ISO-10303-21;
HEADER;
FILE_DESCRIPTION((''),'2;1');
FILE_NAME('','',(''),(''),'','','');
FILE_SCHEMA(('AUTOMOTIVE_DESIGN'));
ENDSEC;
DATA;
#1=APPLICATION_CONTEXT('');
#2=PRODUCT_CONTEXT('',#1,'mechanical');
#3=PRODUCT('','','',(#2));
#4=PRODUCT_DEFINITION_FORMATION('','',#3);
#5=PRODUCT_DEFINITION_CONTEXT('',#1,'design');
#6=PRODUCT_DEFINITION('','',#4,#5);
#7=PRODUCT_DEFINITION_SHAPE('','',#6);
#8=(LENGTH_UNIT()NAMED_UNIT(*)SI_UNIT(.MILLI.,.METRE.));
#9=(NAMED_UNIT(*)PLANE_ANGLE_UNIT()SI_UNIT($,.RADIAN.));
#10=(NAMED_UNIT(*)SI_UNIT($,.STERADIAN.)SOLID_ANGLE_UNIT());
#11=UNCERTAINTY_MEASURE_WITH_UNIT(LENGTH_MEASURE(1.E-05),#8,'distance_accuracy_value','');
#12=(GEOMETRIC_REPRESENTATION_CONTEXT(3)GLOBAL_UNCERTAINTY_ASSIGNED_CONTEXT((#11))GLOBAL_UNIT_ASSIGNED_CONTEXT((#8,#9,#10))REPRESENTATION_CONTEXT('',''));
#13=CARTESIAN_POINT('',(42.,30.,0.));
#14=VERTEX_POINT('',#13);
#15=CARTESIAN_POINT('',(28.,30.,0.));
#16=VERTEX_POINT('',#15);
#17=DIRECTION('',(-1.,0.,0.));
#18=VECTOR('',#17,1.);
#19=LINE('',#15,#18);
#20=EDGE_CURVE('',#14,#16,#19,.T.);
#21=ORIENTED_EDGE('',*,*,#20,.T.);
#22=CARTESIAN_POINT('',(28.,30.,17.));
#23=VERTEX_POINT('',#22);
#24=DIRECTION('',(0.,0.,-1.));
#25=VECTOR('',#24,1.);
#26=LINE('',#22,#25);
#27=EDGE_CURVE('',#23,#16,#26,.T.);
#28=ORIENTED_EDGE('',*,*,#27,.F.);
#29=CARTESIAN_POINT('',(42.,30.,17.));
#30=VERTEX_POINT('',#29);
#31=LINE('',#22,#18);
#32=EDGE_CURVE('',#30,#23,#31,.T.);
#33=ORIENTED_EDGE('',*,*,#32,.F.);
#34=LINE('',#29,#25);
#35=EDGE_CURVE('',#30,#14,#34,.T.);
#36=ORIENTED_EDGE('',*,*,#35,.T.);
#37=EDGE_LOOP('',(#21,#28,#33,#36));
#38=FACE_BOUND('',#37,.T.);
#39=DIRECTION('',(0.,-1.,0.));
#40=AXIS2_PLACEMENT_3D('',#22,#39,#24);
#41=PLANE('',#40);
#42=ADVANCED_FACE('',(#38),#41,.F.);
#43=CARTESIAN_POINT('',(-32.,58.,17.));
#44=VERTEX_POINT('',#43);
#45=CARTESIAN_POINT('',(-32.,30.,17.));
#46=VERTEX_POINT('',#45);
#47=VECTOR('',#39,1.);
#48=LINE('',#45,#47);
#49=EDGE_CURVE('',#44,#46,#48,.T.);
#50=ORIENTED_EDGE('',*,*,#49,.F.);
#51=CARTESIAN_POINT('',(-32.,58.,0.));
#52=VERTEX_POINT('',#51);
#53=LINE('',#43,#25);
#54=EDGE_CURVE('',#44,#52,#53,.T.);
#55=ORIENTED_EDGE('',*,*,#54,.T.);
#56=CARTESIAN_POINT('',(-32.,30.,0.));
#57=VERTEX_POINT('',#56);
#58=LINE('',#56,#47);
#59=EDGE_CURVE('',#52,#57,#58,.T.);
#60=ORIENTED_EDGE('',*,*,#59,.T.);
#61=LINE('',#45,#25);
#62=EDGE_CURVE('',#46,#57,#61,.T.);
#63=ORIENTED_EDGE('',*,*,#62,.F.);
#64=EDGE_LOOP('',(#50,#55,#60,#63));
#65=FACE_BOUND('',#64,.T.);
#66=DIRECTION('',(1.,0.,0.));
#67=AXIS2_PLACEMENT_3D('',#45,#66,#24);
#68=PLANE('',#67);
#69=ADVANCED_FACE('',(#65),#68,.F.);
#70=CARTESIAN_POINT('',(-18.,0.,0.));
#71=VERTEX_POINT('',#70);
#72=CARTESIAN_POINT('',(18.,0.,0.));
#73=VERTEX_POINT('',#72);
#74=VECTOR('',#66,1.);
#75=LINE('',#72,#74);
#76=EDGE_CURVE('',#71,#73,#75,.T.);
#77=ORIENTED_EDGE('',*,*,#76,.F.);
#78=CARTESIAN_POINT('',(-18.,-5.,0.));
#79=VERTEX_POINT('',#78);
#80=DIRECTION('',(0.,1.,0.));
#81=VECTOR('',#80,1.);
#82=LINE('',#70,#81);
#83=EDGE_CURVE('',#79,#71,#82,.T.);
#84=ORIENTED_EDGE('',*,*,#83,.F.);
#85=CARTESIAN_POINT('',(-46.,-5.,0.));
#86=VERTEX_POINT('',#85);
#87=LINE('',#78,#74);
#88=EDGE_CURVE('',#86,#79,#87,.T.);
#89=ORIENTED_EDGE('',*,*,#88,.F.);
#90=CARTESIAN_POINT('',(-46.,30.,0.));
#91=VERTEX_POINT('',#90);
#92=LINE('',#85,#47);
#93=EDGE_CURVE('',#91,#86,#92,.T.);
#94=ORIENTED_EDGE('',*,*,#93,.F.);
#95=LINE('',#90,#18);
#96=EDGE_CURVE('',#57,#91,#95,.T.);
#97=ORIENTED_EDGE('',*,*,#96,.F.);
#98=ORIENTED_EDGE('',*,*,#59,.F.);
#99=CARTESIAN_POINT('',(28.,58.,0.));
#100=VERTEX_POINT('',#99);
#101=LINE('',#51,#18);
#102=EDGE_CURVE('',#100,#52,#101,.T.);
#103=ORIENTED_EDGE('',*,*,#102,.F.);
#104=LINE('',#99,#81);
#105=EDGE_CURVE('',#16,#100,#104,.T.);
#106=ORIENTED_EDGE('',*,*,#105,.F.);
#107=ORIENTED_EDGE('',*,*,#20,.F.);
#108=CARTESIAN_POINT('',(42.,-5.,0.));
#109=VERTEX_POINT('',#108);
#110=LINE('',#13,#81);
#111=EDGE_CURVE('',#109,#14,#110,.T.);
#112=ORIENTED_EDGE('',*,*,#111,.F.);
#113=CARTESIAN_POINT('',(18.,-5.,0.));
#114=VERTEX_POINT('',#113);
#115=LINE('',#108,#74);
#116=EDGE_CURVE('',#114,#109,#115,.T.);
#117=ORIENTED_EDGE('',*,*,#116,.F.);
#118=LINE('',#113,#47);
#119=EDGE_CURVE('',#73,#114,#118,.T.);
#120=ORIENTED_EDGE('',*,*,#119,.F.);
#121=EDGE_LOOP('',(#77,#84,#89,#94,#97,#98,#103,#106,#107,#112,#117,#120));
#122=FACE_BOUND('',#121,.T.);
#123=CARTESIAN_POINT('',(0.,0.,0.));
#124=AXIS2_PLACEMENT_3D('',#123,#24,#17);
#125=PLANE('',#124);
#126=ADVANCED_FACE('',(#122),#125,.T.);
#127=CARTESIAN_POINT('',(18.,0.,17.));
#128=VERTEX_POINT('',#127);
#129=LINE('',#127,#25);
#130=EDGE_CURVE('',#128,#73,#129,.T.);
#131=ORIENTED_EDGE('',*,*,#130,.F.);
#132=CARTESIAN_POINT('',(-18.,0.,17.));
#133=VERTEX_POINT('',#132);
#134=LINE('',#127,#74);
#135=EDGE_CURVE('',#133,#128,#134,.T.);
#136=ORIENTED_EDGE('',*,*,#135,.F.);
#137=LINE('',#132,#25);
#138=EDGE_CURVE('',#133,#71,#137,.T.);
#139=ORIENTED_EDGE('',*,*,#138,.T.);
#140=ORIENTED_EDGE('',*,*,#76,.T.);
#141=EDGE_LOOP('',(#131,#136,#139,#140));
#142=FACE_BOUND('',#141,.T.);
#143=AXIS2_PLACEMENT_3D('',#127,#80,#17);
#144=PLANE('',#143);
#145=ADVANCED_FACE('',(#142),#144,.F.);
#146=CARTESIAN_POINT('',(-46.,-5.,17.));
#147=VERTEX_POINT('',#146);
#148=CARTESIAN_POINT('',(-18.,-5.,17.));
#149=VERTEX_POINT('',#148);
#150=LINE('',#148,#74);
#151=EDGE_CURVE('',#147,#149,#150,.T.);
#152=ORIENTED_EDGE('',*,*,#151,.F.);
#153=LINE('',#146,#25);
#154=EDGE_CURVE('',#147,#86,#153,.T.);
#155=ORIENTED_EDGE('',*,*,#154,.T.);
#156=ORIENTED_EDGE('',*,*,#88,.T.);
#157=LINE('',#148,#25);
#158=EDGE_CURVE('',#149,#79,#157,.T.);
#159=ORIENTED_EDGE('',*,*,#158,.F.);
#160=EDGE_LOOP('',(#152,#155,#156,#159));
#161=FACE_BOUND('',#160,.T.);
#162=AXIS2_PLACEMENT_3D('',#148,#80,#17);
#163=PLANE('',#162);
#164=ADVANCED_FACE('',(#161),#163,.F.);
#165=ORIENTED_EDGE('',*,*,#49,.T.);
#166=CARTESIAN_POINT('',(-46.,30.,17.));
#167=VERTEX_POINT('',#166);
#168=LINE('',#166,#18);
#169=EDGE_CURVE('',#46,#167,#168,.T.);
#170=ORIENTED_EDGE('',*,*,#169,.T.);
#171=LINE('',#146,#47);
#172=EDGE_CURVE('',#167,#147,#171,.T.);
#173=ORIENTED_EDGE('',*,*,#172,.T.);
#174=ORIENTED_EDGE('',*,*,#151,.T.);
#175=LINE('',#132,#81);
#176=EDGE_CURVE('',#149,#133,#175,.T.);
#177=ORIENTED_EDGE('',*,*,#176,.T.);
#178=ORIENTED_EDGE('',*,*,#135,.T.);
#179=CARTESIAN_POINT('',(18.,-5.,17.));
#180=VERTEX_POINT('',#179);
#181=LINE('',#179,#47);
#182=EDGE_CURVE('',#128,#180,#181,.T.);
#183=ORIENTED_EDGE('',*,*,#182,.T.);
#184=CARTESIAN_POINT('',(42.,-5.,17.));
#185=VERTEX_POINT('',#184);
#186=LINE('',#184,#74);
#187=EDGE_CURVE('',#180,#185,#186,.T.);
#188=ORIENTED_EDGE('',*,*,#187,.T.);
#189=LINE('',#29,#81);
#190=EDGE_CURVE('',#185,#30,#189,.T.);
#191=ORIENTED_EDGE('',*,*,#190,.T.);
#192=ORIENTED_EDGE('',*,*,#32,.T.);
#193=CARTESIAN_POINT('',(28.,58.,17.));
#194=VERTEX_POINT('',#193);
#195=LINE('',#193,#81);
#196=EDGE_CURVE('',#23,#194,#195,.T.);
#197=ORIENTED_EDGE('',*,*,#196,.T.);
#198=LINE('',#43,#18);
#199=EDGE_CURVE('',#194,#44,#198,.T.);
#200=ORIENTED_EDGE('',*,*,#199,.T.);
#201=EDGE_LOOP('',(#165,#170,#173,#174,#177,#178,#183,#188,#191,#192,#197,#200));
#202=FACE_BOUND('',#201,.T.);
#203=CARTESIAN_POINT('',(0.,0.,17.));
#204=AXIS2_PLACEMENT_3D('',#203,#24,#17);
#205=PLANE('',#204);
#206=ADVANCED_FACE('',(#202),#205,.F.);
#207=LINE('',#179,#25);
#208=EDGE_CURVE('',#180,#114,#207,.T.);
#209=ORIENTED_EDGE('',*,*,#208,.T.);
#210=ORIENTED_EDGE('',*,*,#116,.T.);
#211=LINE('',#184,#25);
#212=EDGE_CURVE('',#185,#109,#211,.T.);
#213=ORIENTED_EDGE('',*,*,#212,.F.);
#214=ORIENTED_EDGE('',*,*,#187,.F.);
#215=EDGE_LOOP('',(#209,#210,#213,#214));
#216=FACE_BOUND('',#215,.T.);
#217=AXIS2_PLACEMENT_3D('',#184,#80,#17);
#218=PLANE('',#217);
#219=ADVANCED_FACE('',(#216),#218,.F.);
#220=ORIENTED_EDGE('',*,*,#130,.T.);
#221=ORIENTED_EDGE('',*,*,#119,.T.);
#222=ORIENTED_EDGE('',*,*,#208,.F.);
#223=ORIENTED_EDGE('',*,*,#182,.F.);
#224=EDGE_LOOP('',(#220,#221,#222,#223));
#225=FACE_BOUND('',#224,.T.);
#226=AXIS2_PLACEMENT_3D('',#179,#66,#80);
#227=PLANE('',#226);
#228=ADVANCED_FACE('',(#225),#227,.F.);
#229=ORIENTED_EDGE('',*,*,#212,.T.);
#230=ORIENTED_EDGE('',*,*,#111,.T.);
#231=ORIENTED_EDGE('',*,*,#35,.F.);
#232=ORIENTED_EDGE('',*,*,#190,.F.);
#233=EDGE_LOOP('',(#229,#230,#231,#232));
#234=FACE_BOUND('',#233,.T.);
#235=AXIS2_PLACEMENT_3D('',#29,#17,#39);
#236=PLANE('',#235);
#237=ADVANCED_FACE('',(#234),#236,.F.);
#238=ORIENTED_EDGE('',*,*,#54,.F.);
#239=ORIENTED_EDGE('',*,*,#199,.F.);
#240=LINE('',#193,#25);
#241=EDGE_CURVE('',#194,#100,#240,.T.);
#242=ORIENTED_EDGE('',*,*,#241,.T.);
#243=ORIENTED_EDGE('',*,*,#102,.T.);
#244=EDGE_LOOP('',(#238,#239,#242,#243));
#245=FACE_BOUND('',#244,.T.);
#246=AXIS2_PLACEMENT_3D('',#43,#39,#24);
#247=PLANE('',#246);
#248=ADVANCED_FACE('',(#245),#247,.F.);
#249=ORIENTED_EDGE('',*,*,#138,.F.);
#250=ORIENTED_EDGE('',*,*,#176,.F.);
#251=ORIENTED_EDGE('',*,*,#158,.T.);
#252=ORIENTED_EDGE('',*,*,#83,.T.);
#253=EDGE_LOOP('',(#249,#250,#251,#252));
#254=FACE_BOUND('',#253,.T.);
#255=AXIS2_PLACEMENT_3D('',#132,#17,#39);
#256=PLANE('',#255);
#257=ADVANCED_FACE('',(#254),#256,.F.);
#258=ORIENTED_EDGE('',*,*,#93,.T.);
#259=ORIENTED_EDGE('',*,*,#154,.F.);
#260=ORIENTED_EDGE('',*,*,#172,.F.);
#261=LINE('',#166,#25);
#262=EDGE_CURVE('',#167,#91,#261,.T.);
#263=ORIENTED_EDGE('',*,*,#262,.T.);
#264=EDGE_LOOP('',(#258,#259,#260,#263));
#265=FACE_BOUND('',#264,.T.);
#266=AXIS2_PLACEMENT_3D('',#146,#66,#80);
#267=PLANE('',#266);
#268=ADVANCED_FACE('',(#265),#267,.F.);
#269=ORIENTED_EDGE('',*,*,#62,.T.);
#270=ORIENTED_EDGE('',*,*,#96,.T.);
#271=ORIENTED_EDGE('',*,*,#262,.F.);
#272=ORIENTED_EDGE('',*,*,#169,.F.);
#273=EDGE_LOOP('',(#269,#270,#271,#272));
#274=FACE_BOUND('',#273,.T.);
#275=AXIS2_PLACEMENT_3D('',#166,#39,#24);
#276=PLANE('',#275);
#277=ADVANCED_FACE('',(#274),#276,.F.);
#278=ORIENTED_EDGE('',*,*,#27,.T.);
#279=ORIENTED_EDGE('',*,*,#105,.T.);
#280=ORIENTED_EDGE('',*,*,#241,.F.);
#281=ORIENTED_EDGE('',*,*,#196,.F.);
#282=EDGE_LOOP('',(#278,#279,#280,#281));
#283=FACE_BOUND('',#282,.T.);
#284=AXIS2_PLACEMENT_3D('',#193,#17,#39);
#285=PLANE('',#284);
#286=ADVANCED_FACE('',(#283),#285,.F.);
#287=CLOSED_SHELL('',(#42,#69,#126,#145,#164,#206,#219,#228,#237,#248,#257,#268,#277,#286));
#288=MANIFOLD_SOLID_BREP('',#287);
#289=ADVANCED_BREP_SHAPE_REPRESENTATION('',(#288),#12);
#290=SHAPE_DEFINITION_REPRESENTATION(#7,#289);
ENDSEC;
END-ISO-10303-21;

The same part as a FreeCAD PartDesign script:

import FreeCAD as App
import Part
import Sketcher

V = App.Vector

doc = App.newDocument("Part")
body = doc.addObject("PartDesign::Body", "Body")

sketch1 = doc.addObject("Sketcher::SketchObject", "Sketch")
body.addObject(sketch1)
sketch1.AttachmentSupport = (doc.XY_Plane, [""])
sketch1.MapMode = "FlatFace"
sketch1.addGeometry(Part.LineSegment(V(28, 58, 0), V(-32, 58, 0)), False)
sketch1.addGeometry(Part.LineSegment(V(-32, 58, 0), V(-32, 30, 0)), False)
sketch1.addGeometry(Part.LineSegment(V(-32, 30, 0), V(-46, 30, 0)), False)
sketch1.addGeometry(Part.LineSegment(V(-46, 30, 0), V(-46, -5, 0)), False)
sketch1.addGeometry(Part.LineSegment(V(-46, -5, 0), V(-18, -5, 0)), False)
sketch1.addGeometry(Part.LineSegment(V(-18, -5, 0), V(-18, 0, 0)), False)
sketch1.addGeometry(Part.LineSegment(V(-18, 0, 0), V(18, 0, 0)), False)
sketch1.addGeometry(Part.LineSegment(V(18, 0, 0), V(18, -5, 0)), False)
sketch1.addGeometry(Part.LineSegment(V(18, -5, 0), V(42, -5, 0)), False)
sketch1.addGeometry(Part.LineSegment(V(42, -5, 0), V(42, 30, 0)), False)
sketch1.addGeometry(Part.LineSegment(V(42, 30, 0), V(28, 30, 0)), False)
sketch1.addGeometry(Part.LineSegment(V(28, 30, 0), V(28, 58, 0)), False)
sketch1.addConstraint(Sketcher.Constraint("Coincident", 0, 2, 1, 1))
sketch1.addConstraint(Sketcher.Constraint("Coincident", 1, 2, 2, 1))
sketch1.addConstraint(Sketcher.Constraint("Coincident", 2, 2, 3, 1))
sketch1.addConstraint(Sketcher.Constraint("Coincident", 3, 2, 4, 1))
sketch1.addConstraint(Sketcher.Constraint("Coincident", 4, 2, 5, 1))
sketch1.addConstraint(Sketcher.Constraint("Coincident", 5, 2, 6, 1))
sketch1.addConstraint(Sketcher.Constraint("Coincident", 6, 2, 7, 1))
sketch1.addConstraint(Sketcher.Constraint("Coincident", 7, 2, 8, 1))
sketch1.addConstraint(Sketcher.Constraint("Coincident", 8, 2, 9, 1))
sketch1.addConstraint(Sketcher.Constraint("Coincident", 9, 2, 10, 1))
sketch1.addConstraint(Sketcher.Constraint("Coincident", 10, 2, 11, 1))
sketch1.addConstraint(Sketcher.Constraint("Coincident", 11, 2, 0, 1))
sketch1.addConstraint(Sketcher.Constraint("Horizontal", 0))
sketch1.addConstraint(Sketcher.Constraint("Vertical", 1))
sketch1.addConstraint(Sketcher.Constraint("Horizontal", 2))
sketch1.addConstraint(Sketcher.Constraint("Vertical", 3))
sketch1.addConstraint(Sketcher.Constraint("Horizontal", 4))
sketch1.addConstraint(Sketcher.Constraint("Vertical", 5))
sketch1.addConstraint(Sketcher.Constraint("Horizontal", 6))
sketch1.addConstraint(Sketcher.Constraint("Vertical", 7))
sketch1.addConstraint(Sketcher.Constraint("Horizontal", 8))
sketch1.addConstraint(Sketcher.Constraint("Vertical", 9))
sketch1.addConstraint(Sketcher.Constraint("Horizontal", 10))
sketch1.addConstraint(Sketcher.Constraint("Vertical", 11))
sketch1.addConstraint(Sketcher.Constraint("Symmetric", 5, 2, 6, 2, -1, 1))
sketch1.addConstraint(Sketcher.Constraint("Horizontal", 4, 2, 7, 2))
sketch1.addConstraint(Sketcher.Constraint("Horizontal", 2, 2, 9, 2))
sketch1.addConstraint(Sketcher.Constraint("Equal", 2, 10))
sketch1.addConstraint(Sketcher.Constraint("Equal", 4, 1))
sketch1.addConstraint(Sketcher.Constraint("DistanceX", 0, 2, 0, 1, 60.0))
sketch1.addConstraint(Sketcher.Constraint("DistanceX", 2, 2, 2, 1, 14.0))
sketch1.addConstraint(Sketcher.Constraint("DistanceX", 4, 1, 4, 2, 28.0))
sketch1.addConstraint(Sketcher.Constraint("DistanceX", 6, 1, 6, 2, 36.0))
sketch1.addConstraint(Sketcher.Constraint("DistanceY", 3, 2, 3, 1, 35.0))
sketch1.addConstraint(Sketcher.Constraint("DistanceY", 5, 1, 5, 2, 5.0))
pad1 = doc.addObject("PartDesign::Pad", "Pad")
body.addObject(pad1)
pad1.Profile = sketch1
pad1.Length = 17

doc.recompute()
